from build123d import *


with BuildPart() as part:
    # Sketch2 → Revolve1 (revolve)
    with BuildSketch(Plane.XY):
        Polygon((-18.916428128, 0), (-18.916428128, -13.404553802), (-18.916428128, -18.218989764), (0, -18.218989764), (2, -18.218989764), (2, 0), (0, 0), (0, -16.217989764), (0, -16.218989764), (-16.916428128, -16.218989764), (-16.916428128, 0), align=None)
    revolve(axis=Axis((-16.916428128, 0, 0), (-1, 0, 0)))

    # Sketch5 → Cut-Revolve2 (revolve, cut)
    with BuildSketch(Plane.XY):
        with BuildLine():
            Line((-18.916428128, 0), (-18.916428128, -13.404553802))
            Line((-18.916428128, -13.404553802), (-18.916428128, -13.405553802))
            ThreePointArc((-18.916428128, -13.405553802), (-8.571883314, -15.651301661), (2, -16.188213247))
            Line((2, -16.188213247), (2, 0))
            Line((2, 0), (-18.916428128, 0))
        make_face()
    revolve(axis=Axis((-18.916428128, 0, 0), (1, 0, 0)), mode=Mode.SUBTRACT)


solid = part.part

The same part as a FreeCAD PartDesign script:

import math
import FreeCAD as App
import Part
import Sketcher

V = App.Vector
Q = App.Units.Quantity

doc = App.newDocument("Part")
params = doc.addObject("Spreadsheet::Sheet", "Params")
for row, (alias, value) in enumerate([
    ("sketch1_width", "2 mm"),
    ("revolution_angle", "360 deg"),
    ("sketch2_radius", "65 mm"),
    ("groove_angle", "360 deg"),
], start=1):
    params.set(f"A{row}", alias)
    params.set(f"B{row}", "=" + value)
    params.setAlias(f"B{row}", alias)

body = doc.addObject("PartDesign::Body", "Body")

# Sketch on XY plane
sketch1 = doc.addObject("Sketcher::SketchObject", "Sketch")
body.addObject(sketch1)
sketch1.AttachmentSupport = (doc.XY_Plane, [""])
sketch1.MapMode = "FlatFace"
sketch1.addGeometry(Part.LineSegment(V(-18.9, 0, 0), V(-18.9, -18.2, 0)), False)
sketch1.addGeometry(Part.LineSegment(V(-18.9, -18.2, 0), V(2, -18.2, 0)), False)
sketch1.addGeometry(Part.LineSegment(V(2, -18.2, 0), V(2, 0, 0)), False)
sketch1.addGeometry(Part.LineSegment(V(2, 0, 0), V(0, 0, 0)), False)
sketch1.addGeometry(Part.LineSegment(V(0, 0, 0), V(0, -16.2, 0)), False)
sketch1.addGeometry(Part.LineSegment(V(0, -16.2, 0), V(-16.9, -16.2, 0)), False)
sketch1.addGeometry(Part.LineSegment(V(-16.9, -16.2, 0), V(-16.9, 0, 0)), False)
sketch1.addGeometry(Part.LineSegment(V(-16.9, 0, 0), V(-18.9, 0, 0)), False)
sketch1.addConstraint(Sketcher.Constraint("Coincident", 0, 2, 1, 1))
sketch1.addConstraint(Sketcher.Constraint("Coincident", 1, 2, 2, 1))
sketch1.addConstraint(Sketcher.Constraint("Coincident", 2, 2, 3, 1))
sketch1.addConstraint(Sketcher.Constraint("Coincident", 3, 2, 4, 1))
sketch1.addConstraint(Sketcher.Constraint("Coincident", 4, 2, 5, 1))
sketch1.addConstraint(Sketcher.Constraint("Coincident", 5, 2, 6, 1))
sketch1.addConstraint(Sketcher.Constraint("Coincident", 6, 2, 7, 1))
sketch1.addConstraint(Sketcher.Constraint("Coincident", 7, 2, 0, 1))
sketch1.addConstraint(Sketcher.Constraint("Vertical", 0))
sketch1.addConstraint(Sketcher.Constraint("Horizontal", 1))
sketch1.addConstraint(Sketcher.Constraint("Vertical", 2))
sketch1.addConstraint(Sketcher.Constraint("Horizontal", 3))
sketch1.addConstraint(Sketcher.Constraint("Vertical", 4))
sketch1.addConstraint(Sketcher.Constraint("Horizontal", 5))
sketch1.addConstraint(Sketcher.Constraint("Vertical", 6))
sketch1.addConstraint(Sketcher.Constraint("Horizontal", 7))
sketch1.addConstraint(Sketcher.Constraint("Coincident", 3, 2, -1, 1))
sketch1.addConstraint(Sketcher.Constraint("PointOnObject", 6, 2, -1))
sketch1.addConstraint(Sketcher.Constraint("Equal", 3, 7))
sketch1.addConstraint(Sketcher.Constraint("DistanceX", 3, 2, 3, 1, Q("2 mm")))
sketch1.addConstraint(Sketcher.Constraint("DistanceY", 1, 2, 4, 2, Q("2 mm")))
sketch1.addConstraint(Sketcher.Constraint("DistanceX", 1, 1, 1, 2, Q("20.916428 mm")))
sketch1.addConstraint(Sketcher.Constraint("DistanceY", 0, 2, 0, 1, Q("18.21899 mm")))
sketch1.setExpression("Constraints[19]", "Params.sketch1_width")
revolution = doc.addObject("PartDesign::Revolution", "Revolution")
body.addObject(revolution)
revolution.Profile = sketch1
revolution.ReferenceAxis = (sketch1, ["H_Axis"])
revolution.setExpression("Angle", "Params.revolution_angle")

# Sketch on XY plane
sketch2 = doc.addObject("Sketcher::SketchObject", "Sketch001")
body.addObject(sketch2)
sketch2.AttachmentSupport = (doc.XY_Plane, [""])
sketch2.MapMode = "FlatFace"
sketch2.addGeometry(Part.LineSegment(V(-19, 0, 0), V(-19, -13, 0)), False)
sketch2.addGeometry(Part.ArcOfCircle(Part.Circle(V(0, 49, 0), V(0, 0, 1), 65), math.radians(-106.92), math.radians(-88.24)), False)
sketch2.addGeometry(Part.LineSegment(V(2, -16, 0), V(2, 0, 0)), False)
sketch2.addGeometry(Part.LineSegment(V(2, 0, 0), V(-19, 0, 0)), False)
sketch2.addConstraint(Sketcher.Constraint("Coincident", 0, 2, 1, 1))
sketch2.addConstraint(Sketcher.Constraint("Coincident", 1, 2, 2, 1))
sketch2.addConstraint(Sketcher.Constraint("Coincident", 2, 2, 3, 1))
sketch2.addConstraint(Sketcher.Constraint("Coincident", 3, 2, 0, 1))
sketch2.addConstraint(Sketcher.Constraint("Vertical", 0))
sketch2.addConstraint(Sketcher.Constraint("Vertical", 2))
sketch2.addConstraint(Sketcher.Constraint("Horizontal", 3))
sketch2.addConstraint(Sketcher.Constraint("PointOnObject", 1, 3, -2))
sketch2.addConstraint(Sketcher.Constraint("PointOnObject", 2, 2, -1))
sketch2.addConstraint(Sketcher.Constraint("Radius", 1, Q("65 mm")))
sketch2.addConstraint(Sketcher.Constraint("DistanceX", -1, 1, 1, 2, Q("2 mm")))
sketch2.addConstraint(Sketcher.Constraint("DistanceX", 3, 2, 3, 1, Q("20.916428 mm")))
sketch2.addConstraint(Sketcher.Constraint("DistanceY", 0, 2, 0, 1, Q("13.405554 mm")))
sketch2.setExpression("Constraints[9]", "Params.sketch2_radius")
groove = doc.addObject("PartDesign::Groove", "Groove")
body.addObject(groove)
groove.Profile = sketch2
groove.ReferenceAxis = (sketch2, ["H_Axis"])
groove.setExpression("Angle", "Params.groove_angle")

doc.recompute()
